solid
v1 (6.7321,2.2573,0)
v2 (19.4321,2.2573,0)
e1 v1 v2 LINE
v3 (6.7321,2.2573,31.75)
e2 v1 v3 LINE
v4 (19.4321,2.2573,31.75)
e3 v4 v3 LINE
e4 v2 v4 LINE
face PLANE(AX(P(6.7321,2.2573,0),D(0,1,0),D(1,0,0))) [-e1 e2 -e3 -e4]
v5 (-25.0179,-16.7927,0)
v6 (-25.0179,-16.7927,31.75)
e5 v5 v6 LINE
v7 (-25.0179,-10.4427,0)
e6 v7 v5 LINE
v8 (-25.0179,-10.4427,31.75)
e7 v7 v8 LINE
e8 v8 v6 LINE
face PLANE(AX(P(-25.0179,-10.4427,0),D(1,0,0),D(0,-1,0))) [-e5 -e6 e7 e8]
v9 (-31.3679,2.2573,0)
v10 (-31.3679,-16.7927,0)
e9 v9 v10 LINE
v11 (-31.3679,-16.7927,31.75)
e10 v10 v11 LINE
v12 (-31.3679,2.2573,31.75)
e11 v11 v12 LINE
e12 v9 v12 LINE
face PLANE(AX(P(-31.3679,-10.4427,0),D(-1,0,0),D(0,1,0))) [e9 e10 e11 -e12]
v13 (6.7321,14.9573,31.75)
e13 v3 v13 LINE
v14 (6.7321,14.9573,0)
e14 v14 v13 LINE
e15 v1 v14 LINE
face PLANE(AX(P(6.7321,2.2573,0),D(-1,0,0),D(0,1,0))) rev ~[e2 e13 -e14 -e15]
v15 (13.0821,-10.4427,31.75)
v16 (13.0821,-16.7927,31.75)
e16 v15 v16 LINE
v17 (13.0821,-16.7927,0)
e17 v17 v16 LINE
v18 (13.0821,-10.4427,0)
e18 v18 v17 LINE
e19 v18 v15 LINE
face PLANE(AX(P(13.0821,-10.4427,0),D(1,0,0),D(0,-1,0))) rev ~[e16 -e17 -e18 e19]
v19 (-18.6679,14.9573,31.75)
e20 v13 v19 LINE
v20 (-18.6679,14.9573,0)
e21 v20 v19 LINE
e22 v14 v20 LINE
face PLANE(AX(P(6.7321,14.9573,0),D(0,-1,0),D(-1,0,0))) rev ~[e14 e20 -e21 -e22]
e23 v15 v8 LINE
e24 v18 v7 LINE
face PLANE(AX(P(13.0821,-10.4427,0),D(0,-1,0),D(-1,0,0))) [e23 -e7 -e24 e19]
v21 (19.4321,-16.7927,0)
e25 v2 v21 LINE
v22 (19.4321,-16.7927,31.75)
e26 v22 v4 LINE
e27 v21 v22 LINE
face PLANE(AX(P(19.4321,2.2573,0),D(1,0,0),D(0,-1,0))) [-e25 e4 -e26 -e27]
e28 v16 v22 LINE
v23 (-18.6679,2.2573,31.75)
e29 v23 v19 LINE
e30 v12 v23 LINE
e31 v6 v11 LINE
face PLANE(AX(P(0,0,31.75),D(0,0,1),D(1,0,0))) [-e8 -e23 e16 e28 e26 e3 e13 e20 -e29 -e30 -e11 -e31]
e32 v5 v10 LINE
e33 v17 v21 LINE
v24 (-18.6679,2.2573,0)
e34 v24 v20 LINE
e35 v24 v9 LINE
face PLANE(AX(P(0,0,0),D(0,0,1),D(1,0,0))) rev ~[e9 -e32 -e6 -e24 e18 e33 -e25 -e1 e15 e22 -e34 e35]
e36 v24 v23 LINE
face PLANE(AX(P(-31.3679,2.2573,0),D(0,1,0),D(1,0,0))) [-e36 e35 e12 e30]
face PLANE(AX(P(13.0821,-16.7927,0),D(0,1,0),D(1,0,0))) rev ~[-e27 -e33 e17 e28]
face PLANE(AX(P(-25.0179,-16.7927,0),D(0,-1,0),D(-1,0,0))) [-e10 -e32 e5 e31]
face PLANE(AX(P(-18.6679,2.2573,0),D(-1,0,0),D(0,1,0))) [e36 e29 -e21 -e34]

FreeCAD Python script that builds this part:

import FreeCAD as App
import Part
import Sketcher

V = App.Vector
Q = App.Units.Quantity


def add_polygon(sketch, points):
    """Adds a closed chain of lines whose ends are joined by coincident constraints."""
    first, n = sketch.GeometryCount, len(points)
    for a, b in zip(points, points[1:] + points[:1]):
        sketch.addGeometry(Part.LineSegment(App.Vector(*a, 0), App.Vector(*b, 0)), False)
    for i in range(n):
        sketch.addConstraint(Sketcher.Constraint("Coincident", first + i, 2, first + (i + 1) % n, 1))

doc = App.newDocument("Part")
body = doc.addObject("PartDesign::Body", "Body")

# Sketch on XY plane
sketch1 = body.newObject("Sketcher::SketchObject", "Sketch")
sketch1.AttachmentSupport = (doc.getObject("XY_Plane"), [""])
sketch1.MapMode = "FlatFace"
add_polygon(sketch1, [(-31.3679, 2.2573), (-31.3679, -16.7927), (-25.0179, -16.7927), (-25.0179, -10.4427), (13.0821, -10.4427), (13.0821, -16.7927), (19.4321, -16.7927), (19.4321, 2.2573), (6.7321, 2.2573), (6.7321, 14.9573), (-18.6679, 14.9573), (-18.6679, 2.2573)])  # lines 0-11
sketch1.addConstraint([
    Sketcher.Constraint("Vertical", 0),
    Sketcher.Constraint("Horizontal", 1),
    Sketcher.Constraint("Vertical", 2),
    Sketcher.Constraint("Horizontal", 3),
    Sketcher.Constraint("Vertical", 4),
    Sketcher.Constraint("Horizontal", 5),
    Sketcher.Constraint("Vertical", 6),
    Sketcher.Constraint("Horizontal", 7),
    Sketcher.Constraint("Vertical", 8),
    Sketcher.Constraint("Horizontal", 9),
    Sketcher.Constraint("Vertical", 10),
    Sketcher.Constraint("Horizontal", 11),
    Sketcher.Constraint("Horizontal", 1, 2, 4, 2),
    Sketcher.Constraint("Horizontal", 7, 2, 10, 2),
    Sketcher.Constraint("Equal", 1, 5),
    Sketcher.Constraint("Equal", 7, 11),
    Sketcher.Constraint("Equal", 5, 2),
    Sketcher.Constraint("Equal", 11, 8),
    Sketcher.Constraint("DistanceX", 9, 2, 9, 1, Q("1 in")),
    Sketcher.Constraint("DistanceX", 7, 2, 7, 1, Q("0.5 in")),
    Sketcher.Constraint("DistanceY", 3, 2, 8, 2, Q("1 in")),
    Sketcher.Constraint("DistanceX", 1, 1, 1, 2, Q("0.25 in")),
    Sketcher.Constraint("DistanceX", 0, 2, -1, 1, 31.368),
    Sketcher.Constraint("DistanceY", 0, 2, -1, 1, 16.7927),
])
pad1 = body.newObject("PartDesign::Pad", "Pad")
pad1.Profile = sketch1
pad1.Length = Q("1.25 in")

doc.recompute()
